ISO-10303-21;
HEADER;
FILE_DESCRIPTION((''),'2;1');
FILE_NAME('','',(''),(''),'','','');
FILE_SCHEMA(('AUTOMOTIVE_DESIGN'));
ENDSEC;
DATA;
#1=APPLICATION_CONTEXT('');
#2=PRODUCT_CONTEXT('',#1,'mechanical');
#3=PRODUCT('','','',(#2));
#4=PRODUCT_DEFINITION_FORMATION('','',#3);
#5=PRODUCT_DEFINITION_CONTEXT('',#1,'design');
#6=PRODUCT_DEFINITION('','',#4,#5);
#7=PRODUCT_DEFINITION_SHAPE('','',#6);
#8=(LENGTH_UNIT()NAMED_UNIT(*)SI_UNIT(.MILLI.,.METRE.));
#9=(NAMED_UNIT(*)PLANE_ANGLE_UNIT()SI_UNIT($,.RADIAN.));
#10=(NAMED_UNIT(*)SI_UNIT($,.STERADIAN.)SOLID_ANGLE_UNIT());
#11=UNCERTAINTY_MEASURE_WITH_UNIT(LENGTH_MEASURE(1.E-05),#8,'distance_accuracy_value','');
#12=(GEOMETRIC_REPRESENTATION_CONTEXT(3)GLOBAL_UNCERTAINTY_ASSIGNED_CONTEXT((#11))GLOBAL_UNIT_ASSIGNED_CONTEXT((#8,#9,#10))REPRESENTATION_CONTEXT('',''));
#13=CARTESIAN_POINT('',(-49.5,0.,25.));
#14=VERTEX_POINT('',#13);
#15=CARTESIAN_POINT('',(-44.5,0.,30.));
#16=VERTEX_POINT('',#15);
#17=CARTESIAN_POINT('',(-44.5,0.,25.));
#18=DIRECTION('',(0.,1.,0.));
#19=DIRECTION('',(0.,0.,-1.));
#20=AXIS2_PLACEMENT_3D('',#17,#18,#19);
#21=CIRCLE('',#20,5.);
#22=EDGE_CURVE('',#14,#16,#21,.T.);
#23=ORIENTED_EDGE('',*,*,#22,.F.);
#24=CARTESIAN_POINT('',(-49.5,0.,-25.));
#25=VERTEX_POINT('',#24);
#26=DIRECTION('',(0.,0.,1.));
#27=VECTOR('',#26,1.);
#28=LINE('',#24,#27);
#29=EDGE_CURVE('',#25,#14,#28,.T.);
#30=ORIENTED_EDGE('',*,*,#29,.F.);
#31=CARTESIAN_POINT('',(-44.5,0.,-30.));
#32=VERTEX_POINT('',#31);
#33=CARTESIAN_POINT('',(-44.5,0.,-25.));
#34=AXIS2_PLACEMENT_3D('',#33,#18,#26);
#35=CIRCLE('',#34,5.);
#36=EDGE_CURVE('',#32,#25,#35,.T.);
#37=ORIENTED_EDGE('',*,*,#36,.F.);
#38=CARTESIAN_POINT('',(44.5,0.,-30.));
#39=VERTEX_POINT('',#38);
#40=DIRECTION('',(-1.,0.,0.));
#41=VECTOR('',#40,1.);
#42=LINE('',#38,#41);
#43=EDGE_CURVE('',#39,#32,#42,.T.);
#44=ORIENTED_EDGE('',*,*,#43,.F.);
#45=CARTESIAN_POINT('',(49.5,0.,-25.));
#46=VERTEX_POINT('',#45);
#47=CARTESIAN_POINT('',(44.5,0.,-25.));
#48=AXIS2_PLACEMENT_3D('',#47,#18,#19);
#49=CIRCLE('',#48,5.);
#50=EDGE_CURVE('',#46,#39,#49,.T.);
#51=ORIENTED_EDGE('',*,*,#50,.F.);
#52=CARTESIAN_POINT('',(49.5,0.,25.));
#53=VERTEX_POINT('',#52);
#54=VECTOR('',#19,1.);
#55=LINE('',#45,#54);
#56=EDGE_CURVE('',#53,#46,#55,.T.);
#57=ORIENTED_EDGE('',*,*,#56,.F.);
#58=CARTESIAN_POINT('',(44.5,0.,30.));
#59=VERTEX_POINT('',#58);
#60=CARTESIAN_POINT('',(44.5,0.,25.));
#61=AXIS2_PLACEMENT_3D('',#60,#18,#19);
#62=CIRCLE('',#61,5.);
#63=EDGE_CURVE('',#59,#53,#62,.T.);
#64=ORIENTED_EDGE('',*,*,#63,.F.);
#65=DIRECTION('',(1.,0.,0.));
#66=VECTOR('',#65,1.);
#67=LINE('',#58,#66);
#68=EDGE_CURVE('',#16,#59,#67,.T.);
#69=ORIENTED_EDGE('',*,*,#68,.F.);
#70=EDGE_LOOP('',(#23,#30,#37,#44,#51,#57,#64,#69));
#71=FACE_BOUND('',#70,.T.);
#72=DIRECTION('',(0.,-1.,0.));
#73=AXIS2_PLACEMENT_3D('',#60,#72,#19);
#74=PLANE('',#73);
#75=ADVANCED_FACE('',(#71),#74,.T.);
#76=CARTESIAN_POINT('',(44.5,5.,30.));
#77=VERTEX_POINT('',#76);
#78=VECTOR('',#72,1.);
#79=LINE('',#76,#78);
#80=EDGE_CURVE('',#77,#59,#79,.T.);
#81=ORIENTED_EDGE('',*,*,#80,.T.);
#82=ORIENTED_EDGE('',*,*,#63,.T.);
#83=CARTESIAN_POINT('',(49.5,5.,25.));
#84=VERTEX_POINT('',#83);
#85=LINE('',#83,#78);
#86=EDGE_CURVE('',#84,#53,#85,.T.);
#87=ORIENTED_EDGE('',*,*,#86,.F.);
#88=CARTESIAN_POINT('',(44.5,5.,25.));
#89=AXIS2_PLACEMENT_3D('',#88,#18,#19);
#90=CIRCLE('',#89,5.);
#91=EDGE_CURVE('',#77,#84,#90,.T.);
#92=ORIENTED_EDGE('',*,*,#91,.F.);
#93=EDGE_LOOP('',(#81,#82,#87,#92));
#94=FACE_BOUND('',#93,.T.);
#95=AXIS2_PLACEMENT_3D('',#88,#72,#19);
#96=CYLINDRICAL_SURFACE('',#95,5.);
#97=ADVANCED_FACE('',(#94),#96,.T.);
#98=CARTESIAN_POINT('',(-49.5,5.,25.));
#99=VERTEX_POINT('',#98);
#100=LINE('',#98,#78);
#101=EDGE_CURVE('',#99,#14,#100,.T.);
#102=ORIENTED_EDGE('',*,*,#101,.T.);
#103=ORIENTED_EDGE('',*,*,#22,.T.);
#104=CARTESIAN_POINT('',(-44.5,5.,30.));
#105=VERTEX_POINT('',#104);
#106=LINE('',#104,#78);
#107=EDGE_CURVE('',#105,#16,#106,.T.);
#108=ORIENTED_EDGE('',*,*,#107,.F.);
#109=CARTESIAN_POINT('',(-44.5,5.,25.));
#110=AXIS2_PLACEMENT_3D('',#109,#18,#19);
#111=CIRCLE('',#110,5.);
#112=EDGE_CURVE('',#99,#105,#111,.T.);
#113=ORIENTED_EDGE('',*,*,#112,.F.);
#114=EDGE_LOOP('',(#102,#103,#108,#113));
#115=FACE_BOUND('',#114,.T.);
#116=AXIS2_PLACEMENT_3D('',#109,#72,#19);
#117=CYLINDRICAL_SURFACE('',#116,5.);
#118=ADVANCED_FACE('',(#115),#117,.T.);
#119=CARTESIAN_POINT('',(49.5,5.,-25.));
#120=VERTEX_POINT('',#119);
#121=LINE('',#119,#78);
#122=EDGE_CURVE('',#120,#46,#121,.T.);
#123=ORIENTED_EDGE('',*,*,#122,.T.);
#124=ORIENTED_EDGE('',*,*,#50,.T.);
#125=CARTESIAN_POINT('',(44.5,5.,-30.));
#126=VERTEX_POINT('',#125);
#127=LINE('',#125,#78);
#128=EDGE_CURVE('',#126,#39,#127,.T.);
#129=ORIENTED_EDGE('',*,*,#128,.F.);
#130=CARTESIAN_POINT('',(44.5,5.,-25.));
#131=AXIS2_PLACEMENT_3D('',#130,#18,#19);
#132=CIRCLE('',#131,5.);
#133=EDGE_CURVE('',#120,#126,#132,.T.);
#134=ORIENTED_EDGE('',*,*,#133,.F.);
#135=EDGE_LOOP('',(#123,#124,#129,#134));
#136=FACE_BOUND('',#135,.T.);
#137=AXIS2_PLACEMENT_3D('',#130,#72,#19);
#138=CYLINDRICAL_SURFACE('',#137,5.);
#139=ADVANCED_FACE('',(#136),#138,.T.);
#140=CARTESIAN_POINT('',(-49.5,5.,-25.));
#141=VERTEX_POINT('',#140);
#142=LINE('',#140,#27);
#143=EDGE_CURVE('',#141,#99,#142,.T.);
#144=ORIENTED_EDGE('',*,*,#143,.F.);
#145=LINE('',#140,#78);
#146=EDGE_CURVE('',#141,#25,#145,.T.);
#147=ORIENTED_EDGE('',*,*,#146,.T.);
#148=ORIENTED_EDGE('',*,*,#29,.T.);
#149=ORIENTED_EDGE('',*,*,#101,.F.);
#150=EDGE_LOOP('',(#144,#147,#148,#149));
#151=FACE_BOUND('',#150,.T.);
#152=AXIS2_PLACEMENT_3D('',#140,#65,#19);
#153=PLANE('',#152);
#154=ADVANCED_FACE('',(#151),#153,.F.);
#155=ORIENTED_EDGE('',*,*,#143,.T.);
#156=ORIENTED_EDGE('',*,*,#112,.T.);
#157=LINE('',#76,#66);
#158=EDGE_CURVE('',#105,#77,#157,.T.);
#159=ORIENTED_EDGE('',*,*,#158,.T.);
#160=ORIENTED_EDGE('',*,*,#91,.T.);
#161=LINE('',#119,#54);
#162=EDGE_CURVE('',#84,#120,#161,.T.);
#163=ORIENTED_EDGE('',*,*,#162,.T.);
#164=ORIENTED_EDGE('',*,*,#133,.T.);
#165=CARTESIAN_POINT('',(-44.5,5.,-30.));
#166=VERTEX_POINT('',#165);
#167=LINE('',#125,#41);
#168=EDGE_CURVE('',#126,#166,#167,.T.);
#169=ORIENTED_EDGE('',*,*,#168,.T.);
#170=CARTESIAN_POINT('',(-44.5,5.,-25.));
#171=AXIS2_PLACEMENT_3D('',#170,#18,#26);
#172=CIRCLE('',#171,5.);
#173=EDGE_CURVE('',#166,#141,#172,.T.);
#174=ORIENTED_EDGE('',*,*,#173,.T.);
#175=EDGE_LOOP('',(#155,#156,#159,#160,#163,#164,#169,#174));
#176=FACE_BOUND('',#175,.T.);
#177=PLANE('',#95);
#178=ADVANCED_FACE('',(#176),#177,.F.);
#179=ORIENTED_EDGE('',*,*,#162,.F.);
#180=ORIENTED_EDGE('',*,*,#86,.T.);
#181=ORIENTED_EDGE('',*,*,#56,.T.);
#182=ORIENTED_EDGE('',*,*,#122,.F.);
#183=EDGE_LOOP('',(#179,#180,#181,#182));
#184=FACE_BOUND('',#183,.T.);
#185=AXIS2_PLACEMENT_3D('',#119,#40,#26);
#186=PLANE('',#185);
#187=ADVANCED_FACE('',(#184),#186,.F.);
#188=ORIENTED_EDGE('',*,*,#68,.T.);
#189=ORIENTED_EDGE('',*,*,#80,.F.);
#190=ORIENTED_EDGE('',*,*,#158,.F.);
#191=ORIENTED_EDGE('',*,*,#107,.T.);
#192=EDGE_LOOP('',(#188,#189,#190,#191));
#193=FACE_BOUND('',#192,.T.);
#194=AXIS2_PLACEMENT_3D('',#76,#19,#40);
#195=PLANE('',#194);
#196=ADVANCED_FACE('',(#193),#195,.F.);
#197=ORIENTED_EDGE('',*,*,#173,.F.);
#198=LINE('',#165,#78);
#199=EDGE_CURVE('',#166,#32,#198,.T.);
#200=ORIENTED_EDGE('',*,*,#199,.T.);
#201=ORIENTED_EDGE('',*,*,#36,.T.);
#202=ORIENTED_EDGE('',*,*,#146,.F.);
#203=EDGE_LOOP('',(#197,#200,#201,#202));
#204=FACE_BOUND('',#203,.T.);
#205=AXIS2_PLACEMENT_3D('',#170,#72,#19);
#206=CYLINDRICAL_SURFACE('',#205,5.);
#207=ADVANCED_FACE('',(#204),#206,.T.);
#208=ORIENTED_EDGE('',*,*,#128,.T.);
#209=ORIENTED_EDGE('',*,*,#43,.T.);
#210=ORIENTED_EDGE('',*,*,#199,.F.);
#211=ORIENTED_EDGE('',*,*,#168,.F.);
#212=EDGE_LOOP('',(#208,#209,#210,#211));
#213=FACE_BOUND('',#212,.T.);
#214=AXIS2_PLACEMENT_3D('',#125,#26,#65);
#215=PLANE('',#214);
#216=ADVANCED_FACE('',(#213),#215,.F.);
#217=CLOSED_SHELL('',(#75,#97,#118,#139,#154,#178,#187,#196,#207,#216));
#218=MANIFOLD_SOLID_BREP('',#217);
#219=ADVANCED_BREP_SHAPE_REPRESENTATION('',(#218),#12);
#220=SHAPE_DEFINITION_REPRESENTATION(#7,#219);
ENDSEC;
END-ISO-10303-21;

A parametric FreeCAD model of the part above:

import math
import FreeCAD as App
import Part
import Sketcher

V = App.Vector

doc = App.newDocument("Part")
params = doc.addObject("Spreadsheet::Sheet", "Params")
for row, (alias, value) in enumerate([
    ("sketch1_radius", "5 mm"),
    ("sketch1_width", "89 mm"),
    ("sketch1_height", "50 mm"),
    ("pad1_length", "5 mm"),
], start=1):
    params.set(f"A{row}", alias)
    params.set(f"B{row}", "=" + value)
    params.setAlias(f"B{row}", alias)

body = doc.addObject("PartDesign::Body", "Body")

# Sketch on XZ plane
sketch1 = body.newObject("Sketcher::SketchObject", "Sketch")
sketch1.AttachmentSupport = (doc.getObject("XZ_Plane"), [""])
sketch1.MapMode = "FlatFace"
sketch1.addGeometry([
    Part.LineSegment(V(44.5, -30, 0), V(-44.5, -30, 0)),  # 0
    Part.ArcOfCircle(Part.Circle(V(-44.5, -25, 0), V(0, 0, 1), 5), math.radians(180), math.radians(270)),  # 1
    Part.LineSegment(V(-49.5, -25, 0), V(-49.5, 25, 0)),  # 2
    Part.ArcOfCircle(Part.Circle(V(-44.5, 25, 0), V(0, 0, 1), 5), math.radians(90), math.radians(180)),  # 3
    Part.LineSegment(V(-44.5, 30, 0), V(44.5, 30, 0)),  # 4
    Part.ArcOfCircle(Part.Circle(V(44.5, 25, 0), V(0, 0, 1), 5), math.radians(0), math.radians(90)),  # 5
    Part.LineSegment(V(49.5, 25, 0), V(49.5, -25, 0)),  # 6
    Part.ArcOfCircle(Part.Circle(V(44.5, -25, 0), V(0, 0, 1), 5), math.radians(-90), math.radians(0)),  # 7
], False)
sketch1.addConstraint([
    Sketcher.Constraint("Tangent", 0, 2, 1, 2),
    Sketcher.Constraint("Tangent", 1, 1, 2, 1),
    Sketcher.Constraint("Tangent", 2, 2, 3, 2),
    Sketcher.Constraint("Tangent", 3, 1, 4, 1),
    Sketcher.Constraint("Tangent", 4, 2, 5, 2),
    Sketcher.Constraint("Tangent", 5, 1, 6, 1),
    Sketcher.Constraint("Tangent", 6, 2, 7, 2),
    Sketcher.Constraint("Tangent", 7, 1, 0, 1),
    Sketcher.Constraint("Horizontal", 0),
    Sketcher.Constraint("Vertical", 2),
    Sketcher.Constraint("Horizontal", 4),
    Sketcher.Constraint("Vertical", 6),
    Sketcher.Constraint("Equal", 1, 3),
    Sketcher.Constraint("Equal", 3, 5),
    Sketcher.Constraint("Equal", 5, 7),
    Sketcher.Constraint("Symmetric", 1, 3, 5, 3, -1, 1),
    Sketcher.Constraint("Radius", 1, 5.0),
    Sketcher.Constraint("DistanceX", 0, 2, 0, 1, 89.0),
    Sketcher.Constraint("DistanceY", 2, 1, 2, 2, 50.0),
])
sketch1.setExpression("Constraints[16]", "Params.sketch1_radius")
sketch1.setExpression("Constraints[17]", "Params.sketch1_width")
sketch1.setExpression("Constraints[18]", "Params.sketch1_height")
pad1 = body.newObject("PartDesign::Pad", "Pad")
pad1.Profile = sketch1
pad1.setExpression("Length", "Params.pad1_length")
pad1.Reversed = True

doc.recompute()
